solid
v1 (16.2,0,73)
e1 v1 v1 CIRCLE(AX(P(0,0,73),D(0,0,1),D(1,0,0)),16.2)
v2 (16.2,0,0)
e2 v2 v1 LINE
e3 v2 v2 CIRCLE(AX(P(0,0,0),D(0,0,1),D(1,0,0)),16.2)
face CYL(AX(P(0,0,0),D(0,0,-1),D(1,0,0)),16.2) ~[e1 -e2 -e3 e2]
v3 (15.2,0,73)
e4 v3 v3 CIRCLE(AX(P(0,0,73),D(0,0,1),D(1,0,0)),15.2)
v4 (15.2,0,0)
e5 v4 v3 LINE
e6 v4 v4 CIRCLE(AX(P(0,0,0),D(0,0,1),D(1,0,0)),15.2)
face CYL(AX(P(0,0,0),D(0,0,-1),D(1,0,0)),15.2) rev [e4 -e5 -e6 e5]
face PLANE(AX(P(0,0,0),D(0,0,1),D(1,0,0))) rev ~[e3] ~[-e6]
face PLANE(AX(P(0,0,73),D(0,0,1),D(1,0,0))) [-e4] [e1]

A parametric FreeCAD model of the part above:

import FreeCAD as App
import Part
import Sketcher
from FreeCAD import Vector
Q = App.Units.Quantity

doc = App.newDocument("Part")
body = doc.addObject("PartDesign::Body", "Body")

# Sketch on XY plane
sketch1 = body.newObject("Sketcher::SketchObject", "Sketch")
sketch1.AttachmentSupport = (doc.getObject("XY_Plane"), [""])
sketch1.MapMode = "FlatFace"
sketch1.addGeometry([
    Part.Circle(Vector(0, 0, 0), Vector(0, 0, 1), 16.2),
    Part.Circle(Vector(0, 0, 0), Vector(0, 0, 1), 15.2),
], False)
sketch1.addConstraint([
    Sketcher.Constraint("Coincident", 0, 3, -1, 1),
    Sketcher.Constraint("Coincident", 1, 3, -1, 1),
    Sketcher.Constraint("Diameter", 0, Q("32.4 mm")),
    Sketcher.Constraint("Diameter", 1, Q("30.4 mm")),
])
pad1 = body.newObject("PartDesign::Pad", "Pad")
pad1.Profile = sketch1
pad1.Length = 73

doc.recompute()
